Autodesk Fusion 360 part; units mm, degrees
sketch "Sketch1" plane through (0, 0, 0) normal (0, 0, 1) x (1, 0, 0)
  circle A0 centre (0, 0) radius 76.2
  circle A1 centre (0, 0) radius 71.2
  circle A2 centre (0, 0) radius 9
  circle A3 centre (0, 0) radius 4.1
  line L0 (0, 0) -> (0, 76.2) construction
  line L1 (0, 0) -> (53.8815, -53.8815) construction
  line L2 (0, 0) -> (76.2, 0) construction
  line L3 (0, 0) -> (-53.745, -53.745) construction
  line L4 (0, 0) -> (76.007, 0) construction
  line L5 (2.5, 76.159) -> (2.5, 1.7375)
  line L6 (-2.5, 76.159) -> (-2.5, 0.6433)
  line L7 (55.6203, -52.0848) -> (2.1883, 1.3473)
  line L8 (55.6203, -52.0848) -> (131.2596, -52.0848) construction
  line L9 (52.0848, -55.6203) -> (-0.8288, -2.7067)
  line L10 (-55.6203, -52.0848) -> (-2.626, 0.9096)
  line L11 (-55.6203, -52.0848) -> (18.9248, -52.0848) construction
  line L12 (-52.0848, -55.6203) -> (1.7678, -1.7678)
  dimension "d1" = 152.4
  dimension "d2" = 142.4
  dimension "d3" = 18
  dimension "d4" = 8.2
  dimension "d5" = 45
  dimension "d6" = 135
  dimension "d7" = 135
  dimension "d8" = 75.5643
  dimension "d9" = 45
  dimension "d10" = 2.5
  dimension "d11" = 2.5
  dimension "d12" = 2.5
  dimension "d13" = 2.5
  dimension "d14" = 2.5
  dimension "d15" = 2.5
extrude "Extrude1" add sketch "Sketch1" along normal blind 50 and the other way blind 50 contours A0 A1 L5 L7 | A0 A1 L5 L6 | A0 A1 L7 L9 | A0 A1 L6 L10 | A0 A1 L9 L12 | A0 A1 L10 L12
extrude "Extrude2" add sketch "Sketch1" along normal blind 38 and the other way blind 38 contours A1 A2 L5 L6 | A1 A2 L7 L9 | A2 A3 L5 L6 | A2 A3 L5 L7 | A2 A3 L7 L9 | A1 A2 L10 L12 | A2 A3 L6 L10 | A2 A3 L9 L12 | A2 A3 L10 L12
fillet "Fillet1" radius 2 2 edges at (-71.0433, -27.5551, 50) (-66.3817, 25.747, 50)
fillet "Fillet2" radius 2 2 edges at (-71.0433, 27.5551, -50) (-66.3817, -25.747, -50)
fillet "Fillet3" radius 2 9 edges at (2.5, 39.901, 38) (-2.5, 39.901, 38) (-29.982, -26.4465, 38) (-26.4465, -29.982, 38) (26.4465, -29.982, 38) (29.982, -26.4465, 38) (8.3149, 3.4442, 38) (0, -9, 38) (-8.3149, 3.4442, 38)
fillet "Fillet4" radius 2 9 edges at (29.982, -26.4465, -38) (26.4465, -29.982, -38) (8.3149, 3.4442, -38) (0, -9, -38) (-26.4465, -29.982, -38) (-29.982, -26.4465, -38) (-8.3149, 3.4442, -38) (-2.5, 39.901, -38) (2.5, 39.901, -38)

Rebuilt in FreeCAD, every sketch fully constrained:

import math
import FreeCAD as App
import Part
import Sketcher
Q = App.Units.Quantity


def edges_at(feature, points):
    """Names of the edges that pass closest to the given points."""
    edges = feature.Shape.Edges
    near = lambda p: min(range(len(edges)), key=lambda i: edges[i].distToShape(Part.Vertex(*p))[0])
    return sorted({f"Edge{near(p) + 1}" for p in points})

doc = App.newDocument("Part")
body = doc.addObject("PartDesign::Body", "Body")

sketch1 = body.newObject("Sketcher::SketchObject", "Sketch")
sketch1.AttachmentSupport = (doc.getObject("XY_Plane"), [""])
sketch1.MapMode = "FlatFace"
sketch1.addGeometry([
    Part.Circle(App.Vector(0, 0, 0), App.Vector(0, 0, 1), 76.2),
    Part.Circle(App.Vector(0, 0, 0), App.Vector(0, 0, 1), 71.2),
], False)
sketch1.addConstraint([
    Sketcher.Constraint("Coincident", 0, 3, -1, 1),
    Sketcher.Constraint("Coincident", 1, 3, -1, 1),
    Sketcher.Constraint("Diameter", 0, Q("152.4 mm")),
    Sketcher.Constraint("Diameter", 1, Q("142.4 mm")),
])
pad1 = body.newObject("PartDesign::Pad", "Pad")
pad1.Profile = sketch1
pad1.Type = "TwoLengths"
pad1.Length = 50
pad1.Length2 = 50

sketch2 = body.newObject("Sketcher::SketchObject", "Sketch001")
sketch2.AttachmentSupport = (doc.getObject("XY_Plane"), [""])
sketch2.MapMode = "FlatFace"
sketch2.addGeometry([
    Part.LineSegment(App.Vector(2.5, 8.645808, 0), App.Vector(2.5, 71.156096, 0)),
    Part.ArcOfCircle(Part.Circle(App.Vector(0, 0, 0), App.Vector(0, 0, 1), 71.2), math.radians(87.987796), math.radians(92.012204)),
    Part.LineSegment(App.Vector(-2.5, 71.156096, 0), App.Vector(-2.5, 8.645808, 0)),
    Part.ArcOfCircle(Part.Circle(App.Vector(0, 0, 0), App.Vector(0, 0, 1), 9), math.radians(106.12762), math.radians(208.872117)),
    Part.LineSegment(App.Vector(-7.881297, -4.345706, 0), App.Vector(-52.082712, -48.547205, 0)),
    Part.ArcOfCircle(Part.Circle(App.Vector(0, 0, 0), App.Vector(0, 0, 1), 71.2), math.radians(-137.012188), math.radians(-132.987812)),
    Part.LineSegment(App.Vector(-48.547205, -52.082712, 0), App.Vector(-4.345707, -7.881296, 0)),
    Part.ArcOfCircle(Part.Circle(App.Vector(0, 0, 0), App.Vector(0, 0, 1), 9), math.radians(-118.872123), math.radians(-61.127461)),
    Part.LineSegment(App.Vector(4.345765, -7.881265, 0), App.Vector(48.547209, -52.082709, 0)),
    Part.ArcOfCircle(Part.Circle(App.Vector(0, 0, 0), App.Vector(0, 0, 1), 71.2), math.radians(-47.012184), math.radians(-42.987812)),
    Part.LineSegment(App.Vector(52.082712, -48.547205, 0), App.Vector(7.881296, -4.345707, 0)),
    Part.ArcOfCircle(Part.Circle(App.Vector(0, 0, 0), App.Vector(0, 0, 1), 9), math.radians(-28.87212), math.radians(73.87238)),
    Part.Circle(App.Vector(0, 0, 0), App.Vector(0, 0, 1), 4.1),
], False)
sketch2.addConstraint([
    Sketcher.Constraint("Coincident", 0, 2, 1, 1),
    Sketcher.Constraint("Coincident", 1, 2, 2, 1),
    Sketcher.Constraint("Coincident", 2, 2, 3, 1),
    Sketcher.Constraint("Coincident", 3, 2, 4, 1),
    Sketcher.Constraint("Coincident", 4, 2, 5, 1),
    Sketcher.Constraint("Coincident", 5, 2, 6, 1),
    Sketcher.Constraint("Coincident", 6, 2, 7, 1),
    Sketcher.Constraint("Coincident", 7, 2, 8, 1),
    Sketcher.Constraint("Coincident", 8, 2, 9, 1),
    Sketcher.Constraint("Coincident", 9, 2, 10, 1),
    Sketcher.Constraint("Coincident", 10, 2, 11, 1),
    Sketcher.Constraint("Coincident", 11, 2, 0, 1),
    Sketcher.Constraint("Vertical", 0),
    Sketcher.Constraint("Vertical", 2),
    Sketcher.Constraint("Coincident", 1, 3, -1, 1),
    Sketcher.Constraint("Coincident", 3, 3, -1, 1),
    Sketcher.Constraint("Coincident", 5, 3, -1, 1),
    Sketcher.Constraint("Coincident", 7, 3, -1, 1),
    Sketcher.Constraint("Coincident", 9, 3, -1, 1),
    Sketcher.Constraint("Coincident", 11, 3, -1, 1),
    Sketcher.Constraint("Coincident", 12, 3, -1, 1),
    Sketcher.Constraint("Equal", 1, 5),
    Sketcher.Constraint("Equal", 3, 7),
    Sketcher.Constraint("Equal", 5, 9),
    Sketcher.Constraint("Equal", 7, 11),
    Sketcher.Constraint("Parallel", 4, 6),
    Sketcher.Constraint("Perpendicular", 6, 8),
    Sketcher.Constraint("Parallel", 8, 10),
    Sketcher.Constraint("Horizontal", 0, 2, 1, 2),
    Sketcher.Constraint("Horizontal", 6, 2, 7, 2),
    Sketcher.Constraint("Horizontal", 5, 2, 8, 2),
    Sketcher.Constraint("Horizontal", 4, 2, 9, 2),
    Sketcher.Constraint("Equal", 4, 6),
    Sketcher.Constraint("Radius", 3, Q("9 mm")),
    Sketcher.Constraint("Diameter", 12, Q("8.2 mm")),
    Sketcher.Constraint("Radius", 1, Q("71.2 mm")),
    Sketcher.Constraint("DistanceX", -1, 1, 0, 2, Q("2.5 mm")),
    Sketcher.Constraint("DistanceX", 5, 2, 3, 2, Q("40.666 mm")),
])
pad2 = body.newObject("PartDesign::Pad", "Pad001")
pad2.Profile = sketch2
pad2.Type = "TwoLengths"
pad2.Length = 38
pad2.Length2 = 38
doc.recompute()

fillet = body.newObject("PartDesign::Fillet", "Fillet")
fillet.Base = (pad2, edges_at(pad2, [(-71.043, -27.555, 50), (-66.382, 25.747, 50)]))
fillet.Radius = 2
doc.recompute()

fillet2 = body.newObject("PartDesign::Fillet", "Fillet001")
fillet2.Base = (fillet, edges_at(fillet, [(-71.043, 27.555, -50), (-66.382, -25.747, -50)]))
fillet2.Radius = 2
doc.recompute()

fillet3 = body.newObject("PartDesign::Fillet", "Fillet002")
fillet3.Base = (fillet2, edges_at(fillet2, [
    (2.5, 39.901, 38),
    (-2.5, 39.901, 38),
    (-29.982, -26.447, 38),
    (-26.447, -29.982, 38),
    (26.447, -29.982, 38),
    (29.982, -26.447, 38),
    (8.315, 3.444, 38),
    (0, -9, 38),
    (-8.315, 3.444, 38),
]))
fillet3.Radius = 2
doc.recompute()

fillet4 = body.newObject("PartDesign::Fillet", "Fillet003")
fillet4.Base = (fillet3, edges_at(fillet3, [
    (29.982, -26.447, -38),
    (26.447, -29.982, -38),
    (8.315, 3.444, -38),
    (0, -9, -38),
    (-26.447, -29.982, -38),
    (-29.982, -26.447, -38),
    (-8.315, 3.444, -38),
    (-2.5, 39.901, -38),
    (2.5, 39.901, -38),
]))
fillet4.Radius = 2

doc.recompute()
